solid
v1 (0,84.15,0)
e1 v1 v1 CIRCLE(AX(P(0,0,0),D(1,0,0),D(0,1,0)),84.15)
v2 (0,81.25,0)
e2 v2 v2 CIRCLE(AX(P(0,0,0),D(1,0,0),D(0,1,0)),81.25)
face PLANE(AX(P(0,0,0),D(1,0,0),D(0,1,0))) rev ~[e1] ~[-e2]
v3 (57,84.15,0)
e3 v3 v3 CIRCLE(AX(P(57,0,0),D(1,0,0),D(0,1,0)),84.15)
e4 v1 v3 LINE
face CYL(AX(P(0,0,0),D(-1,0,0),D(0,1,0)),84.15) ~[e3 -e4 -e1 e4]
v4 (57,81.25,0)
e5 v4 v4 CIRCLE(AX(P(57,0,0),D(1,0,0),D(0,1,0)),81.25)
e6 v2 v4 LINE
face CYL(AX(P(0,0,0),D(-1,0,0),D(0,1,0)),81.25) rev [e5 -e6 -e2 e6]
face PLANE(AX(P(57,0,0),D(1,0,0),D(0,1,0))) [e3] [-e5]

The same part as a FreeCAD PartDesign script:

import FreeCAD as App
import Part
import Sketcher

V = App.Vector
Q = App.Units.Quantity

doc = App.newDocument("Part")
body = doc.addObject("PartDesign::Body", "Body")

sketch1 = body.newObject("Sketcher::SketchObject", "Sketch")
sketch1.AttachmentSupport = (doc.getObject("YZ_Plane"), [""])
sketch1.MapMode = "FlatFace"
sketch1.addGeometry([
    Part.Circle(V(0, 0, 0), V(0, 0, 1), 84.15),
    Part.Circle(V(0, 0, 0), V(0, 0, 1), 81.25),
], False)
sketch1.addConstraint([
    Sketcher.Constraint("Coincident", 0, 3, -1, 1),
    Sketcher.Constraint("Coincident", 1, 3, -1, 1),
    Sketcher.Constraint("Diameter", 0, Q("168.3 mm")),
    Sketcher.Constraint("Diameter", 1, Q("162.5 mm")),
])
pad1 = body.newObject("PartDesign::Pad", "Pad")
pad1.Profile = sketch1
pad1.Length = 57

doc.recompute()
